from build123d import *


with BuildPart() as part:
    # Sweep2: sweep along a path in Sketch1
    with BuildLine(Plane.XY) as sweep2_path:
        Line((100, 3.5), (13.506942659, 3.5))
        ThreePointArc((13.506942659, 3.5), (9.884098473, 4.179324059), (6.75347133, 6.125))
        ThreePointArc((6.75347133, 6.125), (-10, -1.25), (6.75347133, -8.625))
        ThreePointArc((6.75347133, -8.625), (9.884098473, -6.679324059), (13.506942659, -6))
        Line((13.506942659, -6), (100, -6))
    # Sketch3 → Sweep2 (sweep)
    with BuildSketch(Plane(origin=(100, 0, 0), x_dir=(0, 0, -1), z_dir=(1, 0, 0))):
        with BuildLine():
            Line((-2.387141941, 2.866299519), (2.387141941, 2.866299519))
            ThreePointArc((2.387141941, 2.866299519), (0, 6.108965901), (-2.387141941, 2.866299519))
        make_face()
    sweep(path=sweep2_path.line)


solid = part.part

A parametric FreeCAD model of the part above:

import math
import FreeCAD as App
import Part
import Sketcher
from FreeCAD import Vector
Q = App.Units.Quantity

doc = App.newDocument("Part")
body = doc.addObject("PartDesign::Body", "Body")

# Sketch on YZ plane
sketch1 = body.newObject("Sketcher::SketchObject", "Sketch")
sketch1.AttachmentSupport = (doc.getObject("YZ_Plane"), [""])
sketch1.MapMode = "FlatFace"
sketch1.AttachmentOffset = App.Placement(Vector(0, 0, 100), App.Rotation())
sketch1.addGeometry(Part.LineSegment(Vector(2.9, 2.4, 0), Vector(2.9, -2.4, 0)), False)
sketch1.addGeometry(Part.ArcOfCircle(Part.Circle(Vector(3.6, 0, 0), Vector(0, 0, 1), 2.5), math.radians(-107), math.radians(107)), False)
sketch1.addConstraint(Sketcher.Constraint("Coincident", 0, 1, 1, 2))
sketch1.addConstraint(Sketcher.Constraint("Coincident", 1, 1, 0, 2))
sketch1.addConstraint(Sketcher.Constraint("Vertical", 0))
sketch1.addConstraint(Sketcher.Constraint("PointOnObject", 1, 3, -1))
sketch1.addConstraint(Sketcher.Constraint("Radius", 1, Q("2.5 mm")))
sketch1.addConstraint(Sketcher.Constraint("DistanceX", -1, 1, 0, 1, Q("2.8663 mm")))
sketch1.addConstraint(Sketcher.Constraint("DistanceY", 0, 2, 0, 1, Q("4.774284 mm")))

# Sketch on XY plane
sketch2 = body.newObject("Sketcher::SketchObject", "Sketch001")
sketch2.AttachmentSupport = (doc.getObject("XY_Plane"), [""])
sketch2.MapMode = "FlatFace"
sketch2.addGeometry(Part.LineSegment(Vector(100, 4, 0), Vector(14, 4, 0)), False)
sketch2.addGeometry(Part.ArcOfCircle(Part.Circle(Vector(14, 14, 0), Vector(0, 0, 1), 10), math.radians(-132), math.radians(-90)), False)
sketch2.addGeometry(Part.ArcOfCircle(Part.Circle(Vector(0, -1, 0), Vector(0, 0, 1), 10), math.radians(48), math.radians(312)), False)
sketch2.addGeometry(Part.ArcOfCircle(Part.Circle(Vector(14, -16, 0), Vector(0, 0, 1), 10), math.radians(90), math.radians(132)), False)
sketch2.addGeometry(Part.LineSegment(Vector(14, -6, 0), Vector(100, -6, 0)), False)
sketch2.addConstraint(Sketcher.Constraint("Tangent", 0, 2, 1, 2))
sketch2.addConstraint(Sketcher.Constraint("Tangent", 1, 1, 2, 1))
sketch2.addConstraint(Sketcher.Constraint("Tangent", 2, 2, 3, 2))
sketch2.addConstraint(Sketcher.Constraint("Tangent", 3, 1, 4, 1))
sketch2.addConstraint(Sketcher.Constraint("Horizontal", 0))
sketch2.addConstraint(Sketcher.Constraint("Horizontal", 4))
sketch2.addConstraint(Sketcher.Constraint("Equal", 1, 2))
sketch2.addConstraint(Sketcher.Constraint("Equal", 2, 3))
sketch2.addConstraint(Sketcher.Constraint("PointOnObject", 2, 3, -2))
sketch2.addConstraint(Sketcher.Constraint("Vertical", 1, 3, 3, 3))
sketch2.addConstraint(Sketcher.Constraint("Vertical", 0, 1, 4, 2))
sketch2.addConstraint(Sketcher.Constraint("Radius", 1, Q("10 mm")))
sketch2.addConstraint(Sketcher.Constraint("DistanceY", 3, 3, -1, 1, Q("16 mm")))
sketch2.addConstraint(Sketcher.Constraint("DistanceX", -1, 1, 0, 1, Q("100 mm")))
sketch2.addConstraint(Sketcher.Constraint("DistanceY", -1, 1, 1, 3, Q("13.5 mm")))
doc.recompute()

additivepipe = body.newObject("PartDesign::AdditivePipe", "AdditivePipe")
additivepipe.Profile = sketch1
additivepipe.Spine = (sketch2, ["Edge1", "Edge2", "Edge3", "Edge4", "Edge5"])

doc.recompute()
